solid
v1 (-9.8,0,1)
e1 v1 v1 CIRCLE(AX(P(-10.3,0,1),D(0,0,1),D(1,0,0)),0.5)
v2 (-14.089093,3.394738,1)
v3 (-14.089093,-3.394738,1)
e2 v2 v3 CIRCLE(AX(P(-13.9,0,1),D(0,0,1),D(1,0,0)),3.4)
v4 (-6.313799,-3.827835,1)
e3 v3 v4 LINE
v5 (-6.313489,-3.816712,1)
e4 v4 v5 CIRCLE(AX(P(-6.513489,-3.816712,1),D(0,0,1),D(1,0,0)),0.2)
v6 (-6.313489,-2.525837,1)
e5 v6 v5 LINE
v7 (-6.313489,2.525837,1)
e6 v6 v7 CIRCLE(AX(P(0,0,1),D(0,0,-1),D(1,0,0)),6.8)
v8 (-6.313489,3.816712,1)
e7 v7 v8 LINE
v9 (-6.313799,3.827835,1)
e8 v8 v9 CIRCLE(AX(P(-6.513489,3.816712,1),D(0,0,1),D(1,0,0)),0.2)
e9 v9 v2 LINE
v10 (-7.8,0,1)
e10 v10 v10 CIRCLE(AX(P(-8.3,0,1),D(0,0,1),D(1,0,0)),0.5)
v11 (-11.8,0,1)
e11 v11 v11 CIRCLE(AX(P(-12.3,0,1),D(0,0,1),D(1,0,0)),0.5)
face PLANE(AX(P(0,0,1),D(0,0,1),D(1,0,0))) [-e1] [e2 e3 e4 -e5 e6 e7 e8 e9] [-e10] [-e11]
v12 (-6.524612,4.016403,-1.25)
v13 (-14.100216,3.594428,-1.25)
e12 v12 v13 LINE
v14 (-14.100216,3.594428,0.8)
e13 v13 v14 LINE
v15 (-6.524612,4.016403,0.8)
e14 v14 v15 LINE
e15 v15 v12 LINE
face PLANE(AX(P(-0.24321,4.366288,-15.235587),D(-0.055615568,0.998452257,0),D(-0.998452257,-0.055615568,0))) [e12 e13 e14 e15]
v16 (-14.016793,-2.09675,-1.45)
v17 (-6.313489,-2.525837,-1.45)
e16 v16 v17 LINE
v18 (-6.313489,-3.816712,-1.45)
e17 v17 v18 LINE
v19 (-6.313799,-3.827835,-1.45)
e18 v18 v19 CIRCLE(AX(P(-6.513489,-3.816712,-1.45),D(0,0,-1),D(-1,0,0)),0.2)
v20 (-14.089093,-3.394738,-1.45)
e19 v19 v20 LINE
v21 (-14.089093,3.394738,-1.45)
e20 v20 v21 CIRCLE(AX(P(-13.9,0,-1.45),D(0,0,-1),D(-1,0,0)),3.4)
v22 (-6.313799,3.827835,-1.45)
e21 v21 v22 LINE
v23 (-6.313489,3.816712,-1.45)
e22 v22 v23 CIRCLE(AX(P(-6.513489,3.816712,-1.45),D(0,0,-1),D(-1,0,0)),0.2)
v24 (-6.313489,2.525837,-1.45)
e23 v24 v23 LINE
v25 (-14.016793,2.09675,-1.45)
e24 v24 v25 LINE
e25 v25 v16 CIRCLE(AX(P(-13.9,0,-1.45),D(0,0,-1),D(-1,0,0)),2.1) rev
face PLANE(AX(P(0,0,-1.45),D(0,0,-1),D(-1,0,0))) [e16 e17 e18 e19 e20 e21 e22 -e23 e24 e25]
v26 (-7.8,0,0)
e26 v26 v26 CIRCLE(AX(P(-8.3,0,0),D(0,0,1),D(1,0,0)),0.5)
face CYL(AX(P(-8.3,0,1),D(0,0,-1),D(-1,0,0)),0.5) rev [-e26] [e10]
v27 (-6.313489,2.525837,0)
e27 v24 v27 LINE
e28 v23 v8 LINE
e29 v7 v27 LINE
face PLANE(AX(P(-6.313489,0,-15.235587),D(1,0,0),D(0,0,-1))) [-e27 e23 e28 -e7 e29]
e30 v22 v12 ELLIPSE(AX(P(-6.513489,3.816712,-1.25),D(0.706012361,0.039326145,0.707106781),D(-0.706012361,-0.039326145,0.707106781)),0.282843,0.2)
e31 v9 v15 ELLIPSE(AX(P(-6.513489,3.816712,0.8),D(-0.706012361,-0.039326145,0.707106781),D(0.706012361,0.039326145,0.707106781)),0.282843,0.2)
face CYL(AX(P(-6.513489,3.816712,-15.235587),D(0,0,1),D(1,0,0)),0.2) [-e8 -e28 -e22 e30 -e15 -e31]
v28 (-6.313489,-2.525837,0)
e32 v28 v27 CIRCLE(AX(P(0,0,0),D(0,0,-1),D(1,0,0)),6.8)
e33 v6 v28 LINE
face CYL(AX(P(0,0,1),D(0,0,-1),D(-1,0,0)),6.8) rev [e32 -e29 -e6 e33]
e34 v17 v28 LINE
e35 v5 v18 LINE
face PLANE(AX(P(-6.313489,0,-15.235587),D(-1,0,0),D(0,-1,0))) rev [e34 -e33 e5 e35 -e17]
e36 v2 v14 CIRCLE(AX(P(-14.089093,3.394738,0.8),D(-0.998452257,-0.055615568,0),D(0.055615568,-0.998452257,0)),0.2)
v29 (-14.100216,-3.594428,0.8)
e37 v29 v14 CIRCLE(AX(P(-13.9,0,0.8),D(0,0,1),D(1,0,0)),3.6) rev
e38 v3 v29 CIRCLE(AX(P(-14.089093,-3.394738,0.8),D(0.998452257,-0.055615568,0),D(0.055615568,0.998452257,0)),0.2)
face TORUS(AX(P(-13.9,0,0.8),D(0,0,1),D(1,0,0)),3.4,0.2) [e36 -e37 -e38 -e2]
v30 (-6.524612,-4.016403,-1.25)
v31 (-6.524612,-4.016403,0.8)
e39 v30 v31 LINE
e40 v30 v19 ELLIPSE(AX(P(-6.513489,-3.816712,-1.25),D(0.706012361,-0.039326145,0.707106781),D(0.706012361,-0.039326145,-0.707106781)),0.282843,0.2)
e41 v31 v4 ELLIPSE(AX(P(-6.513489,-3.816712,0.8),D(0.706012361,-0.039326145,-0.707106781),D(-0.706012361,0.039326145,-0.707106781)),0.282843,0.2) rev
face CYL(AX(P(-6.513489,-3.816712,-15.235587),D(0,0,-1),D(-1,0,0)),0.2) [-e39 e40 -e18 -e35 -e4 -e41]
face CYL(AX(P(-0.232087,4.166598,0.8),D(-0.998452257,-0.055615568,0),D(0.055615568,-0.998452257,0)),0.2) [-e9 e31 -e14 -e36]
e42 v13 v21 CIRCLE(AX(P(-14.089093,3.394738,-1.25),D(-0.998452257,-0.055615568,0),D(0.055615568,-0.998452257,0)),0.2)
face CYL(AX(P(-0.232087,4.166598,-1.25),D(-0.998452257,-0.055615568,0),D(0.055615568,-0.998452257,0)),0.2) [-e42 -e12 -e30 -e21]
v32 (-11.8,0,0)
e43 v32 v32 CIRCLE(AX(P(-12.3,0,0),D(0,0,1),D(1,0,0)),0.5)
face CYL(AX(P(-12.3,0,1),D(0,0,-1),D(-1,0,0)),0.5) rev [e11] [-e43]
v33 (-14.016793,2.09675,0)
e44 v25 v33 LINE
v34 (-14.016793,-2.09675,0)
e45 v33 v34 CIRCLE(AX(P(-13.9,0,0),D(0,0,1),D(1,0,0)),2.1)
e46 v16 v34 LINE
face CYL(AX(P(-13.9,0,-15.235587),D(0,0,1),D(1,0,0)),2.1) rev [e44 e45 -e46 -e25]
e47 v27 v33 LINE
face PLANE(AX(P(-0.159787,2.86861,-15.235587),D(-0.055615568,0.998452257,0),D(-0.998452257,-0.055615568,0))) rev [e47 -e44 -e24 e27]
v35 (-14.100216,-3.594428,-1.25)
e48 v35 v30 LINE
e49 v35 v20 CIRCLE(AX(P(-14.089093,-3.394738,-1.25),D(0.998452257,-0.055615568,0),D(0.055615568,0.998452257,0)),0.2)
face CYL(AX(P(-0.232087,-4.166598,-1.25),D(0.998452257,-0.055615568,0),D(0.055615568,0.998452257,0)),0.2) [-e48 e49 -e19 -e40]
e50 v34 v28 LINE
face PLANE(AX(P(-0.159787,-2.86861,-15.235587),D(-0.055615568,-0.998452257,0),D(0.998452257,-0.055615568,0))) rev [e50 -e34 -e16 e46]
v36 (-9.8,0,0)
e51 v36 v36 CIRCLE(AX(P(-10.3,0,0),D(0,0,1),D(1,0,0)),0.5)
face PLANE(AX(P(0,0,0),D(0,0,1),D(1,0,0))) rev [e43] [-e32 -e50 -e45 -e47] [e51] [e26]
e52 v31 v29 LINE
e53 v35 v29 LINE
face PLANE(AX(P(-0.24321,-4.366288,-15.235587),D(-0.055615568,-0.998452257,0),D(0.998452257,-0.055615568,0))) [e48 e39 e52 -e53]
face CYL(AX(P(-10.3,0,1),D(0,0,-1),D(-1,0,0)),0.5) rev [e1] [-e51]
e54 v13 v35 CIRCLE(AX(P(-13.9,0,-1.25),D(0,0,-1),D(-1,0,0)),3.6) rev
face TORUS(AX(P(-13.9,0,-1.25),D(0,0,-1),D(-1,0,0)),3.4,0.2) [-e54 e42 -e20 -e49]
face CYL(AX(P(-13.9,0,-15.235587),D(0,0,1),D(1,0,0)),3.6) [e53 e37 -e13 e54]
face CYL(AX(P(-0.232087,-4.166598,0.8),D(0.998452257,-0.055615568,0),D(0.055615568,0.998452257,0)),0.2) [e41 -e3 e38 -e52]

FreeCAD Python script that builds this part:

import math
import FreeCAD as App
import Part
import Sketcher

V = App.Vector


def edges_at(feature, points):
    """Names of the edges that pass closest to the given points."""
    edges = feature.Shape.Edges
    near = lambda p: min(range(len(edges)), key=lambda i: edges[i].distToShape(Part.Vertex(*p))[0])
    return sorted({f"Edge{near(p) + 1}" for p in points})

doc = App.newDocument("Part")
body = doc.addObject("PartDesign::Body", "Body")

sketch1 = body.newObject("Sketcher::SketchObject", "Sketch")
sketch1.AttachmentSupport = (doc.getObject("XY_Plane"), [""])
sketch1.MapMode = "FlatFace"
sketch1.addGeometry([
    Part.LineSegment(V(-14, -2.1, 0), V(-6.3, -2.5, 0)),
    Part.ArcOfCircle(Part.Circle(V(0, 0, 0), V(0, 0, 1), 6.8), math.radians(158), math.radians(202)),
    Part.LineSegment(V(-6.3, 2.5, 0), V(-14, 2.1, 0)),
    Part.ArcOfCircle(Part.Circle(V(-13.9, 0, 0), V(0, 0, 1), 2.1), math.radians(93), math.radians(267)),
    Part.Circle(V(-12.3, 0, 0), V(0, 0, 1), 0.5),
    Part.Circle(V(-10.3, 0, 0), V(0, 0, 1), 0.5),
    Part.Circle(V(-8.3, 0, 0), V(0, 0, 1), 0.5),
], False)
sketch1.addConstraint([
    Sketcher.Constraint("Coincident", 0, 2, 1, 2),
    Sketcher.Constraint("Coincident", 1, 1, 2, 1),
    Sketcher.Constraint("Tangent", 2, 2, 3, 1),
    Sketcher.Constraint("Tangent", 3, 2, 0, 1),
    Sketcher.Constraint("Coincident", 1, 3, -1, 1),
    Sketcher.Constraint("Equal", 4, 5),
    Sketcher.Constraint("Equal", 5, 6),
    Sketcher.Constraint("Symmetric", 2, 2, 3, 2, -1),
    Sketcher.Constraint("PointOnObject", 4, 3, -1),
    Sketcher.Constraint("PointOnObject", 5, 3, -1),
    Sketcher.Constraint("PointOnObject", 6, 3, -1),
    Sketcher.Constraint("Diameter", 4, 1.0),
    Sketcher.Constraint("Radius", 1, 6.8),
    Sketcher.Constraint("Radius", 3, 2.1),
    Sketcher.Constraint("DistanceX", 4, 3, 5, 3, 2.0),
    Sketcher.Constraint("DistanceX", 5, 3, 6, 3, 2.0),
    Sketcher.Constraint("DistanceX", 3, 3, -1, 1, 13.9),
    Sketcher.Constraint("DistanceX", 4, 3, -1, 1, 12.3),
    Sketcher.Constraint("DistanceY", 3, 2, 2, 2, 4.193499),
])
pad1 = body.newObject("PartDesign::Pad", "Pad")
pad1.Profile = sketch1
pad1.Length = 1

sketch2 = body.newObject("Sketcher::SketchObject", "Sketch001")
sketch2.AttachmentSupport = (doc.getObject("XY_Plane"), [""])
sketch2.MapMode = "FlatFace"
sketch2.AttachmentOffset = App.Placement(V(0, 0, -1.45), App.Rotation())
sketch2.addGeometry([
    Part.LineSegment(V(-6.3, 4, 0), V(-14.1, 3.6, 0)),
    Part.ArcOfCircle(Part.Circle(V(-13.9, 0, 0), V(0, 0, 1), 3.6), math.radians(93), math.radians(267)),
    Part.LineSegment(V(-14.1, -3.6, 0), V(-6.3, -4, 0)),
    Part.LineSegment(V(-6.3, -4, 0), V(-6.3, -2.5, 0)),
    Part.LineSegment(V(-6.3, -2.5, 0), V(-14, -2.1, 0)),
    Part.ArcOfCircle(Part.Circle(V(-13.9, 0, 0), V(0, 0, 1), 2.1), math.radians(93), math.radians(267)),
    Part.LineSegment(V(-14, 2.1, 0), V(-6.3, 2.5, 0)),
    Part.LineSegment(V(-6.3, 2.5, 0), V(-6.3, 4, 0)),
], False)
sketch2.addConstraint([
    Sketcher.Constraint("Tangent", 0, 2, 1, 1),
    Sketcher.Constraint("Tangent", 1, 2, 2, 1),
    Sketcher.Constraint("Coincident", 2, 2, 3, 1),
    Sketcher.Constraint("Coincident", 3, 2, 4, 1),
    Sketcher.Constraint("Tangent", 4, 2, 5, 2),
    Sketcher.Constraint("Tangent", 5, 1, 6, 1),
    Sketcher.Constraint("Coincident", 6, 2, 7, 1),
    Sketcher.Constraint("Coincident", 7, 2, 0, 1),
    Sketcher.Constraint("Vertical", 3),
    Sketcher.Constraint("Vertical", 7),
    Sketcher.Constraint("Coincident", 5, 3, 1, 3),
    Sketcher.Constraint("Symmetric", 0, 2, 1, 2, -1),
    Sketcher.Constraint("Symmetric", 3, 2, 6, 2, -1),
    Sketcher.Constraint("Parallel", 2, 4),
    Sketcher.Constraint("Radius", 1, 3.6),
    Sketcher.Constraint("Radius", 5, 2.1),
    Sketcher.Constraint("DistanceX", 1, 3, -1, 1, 13.9),
    Sketcher.Constraint("DistanceY", 2, 2, 6, 2, 6.554),
    Sketcher.Constraint("DistanceX", 2, 2, -1, 1, 6.313489),
])
pad2 = body.newObject("PartDesign::Pad", "Pad001")
pad2.Profile = sketch2
pad2.Length = 2.45
doc.recompute()

fillet = body.newObject("PartDesign::Fillet", "Fillet")
fillet.Base = (pad2, edges_at(pad2, [
    (-10.207, 3.811, 1),
    (-17.5, 0, 1),
    (-10.207, -3.811, 1),
    (-17.5, 0, -1.45),
    (-10.207, -3.811, -1.45),
    (-6.313, -4.028, -0.225),
    (-6.313, 4.028, -0.225),
    (-10.207, 3.811, -1.45),
]))
fillet.Radius = 0.2

doc.recompute()
